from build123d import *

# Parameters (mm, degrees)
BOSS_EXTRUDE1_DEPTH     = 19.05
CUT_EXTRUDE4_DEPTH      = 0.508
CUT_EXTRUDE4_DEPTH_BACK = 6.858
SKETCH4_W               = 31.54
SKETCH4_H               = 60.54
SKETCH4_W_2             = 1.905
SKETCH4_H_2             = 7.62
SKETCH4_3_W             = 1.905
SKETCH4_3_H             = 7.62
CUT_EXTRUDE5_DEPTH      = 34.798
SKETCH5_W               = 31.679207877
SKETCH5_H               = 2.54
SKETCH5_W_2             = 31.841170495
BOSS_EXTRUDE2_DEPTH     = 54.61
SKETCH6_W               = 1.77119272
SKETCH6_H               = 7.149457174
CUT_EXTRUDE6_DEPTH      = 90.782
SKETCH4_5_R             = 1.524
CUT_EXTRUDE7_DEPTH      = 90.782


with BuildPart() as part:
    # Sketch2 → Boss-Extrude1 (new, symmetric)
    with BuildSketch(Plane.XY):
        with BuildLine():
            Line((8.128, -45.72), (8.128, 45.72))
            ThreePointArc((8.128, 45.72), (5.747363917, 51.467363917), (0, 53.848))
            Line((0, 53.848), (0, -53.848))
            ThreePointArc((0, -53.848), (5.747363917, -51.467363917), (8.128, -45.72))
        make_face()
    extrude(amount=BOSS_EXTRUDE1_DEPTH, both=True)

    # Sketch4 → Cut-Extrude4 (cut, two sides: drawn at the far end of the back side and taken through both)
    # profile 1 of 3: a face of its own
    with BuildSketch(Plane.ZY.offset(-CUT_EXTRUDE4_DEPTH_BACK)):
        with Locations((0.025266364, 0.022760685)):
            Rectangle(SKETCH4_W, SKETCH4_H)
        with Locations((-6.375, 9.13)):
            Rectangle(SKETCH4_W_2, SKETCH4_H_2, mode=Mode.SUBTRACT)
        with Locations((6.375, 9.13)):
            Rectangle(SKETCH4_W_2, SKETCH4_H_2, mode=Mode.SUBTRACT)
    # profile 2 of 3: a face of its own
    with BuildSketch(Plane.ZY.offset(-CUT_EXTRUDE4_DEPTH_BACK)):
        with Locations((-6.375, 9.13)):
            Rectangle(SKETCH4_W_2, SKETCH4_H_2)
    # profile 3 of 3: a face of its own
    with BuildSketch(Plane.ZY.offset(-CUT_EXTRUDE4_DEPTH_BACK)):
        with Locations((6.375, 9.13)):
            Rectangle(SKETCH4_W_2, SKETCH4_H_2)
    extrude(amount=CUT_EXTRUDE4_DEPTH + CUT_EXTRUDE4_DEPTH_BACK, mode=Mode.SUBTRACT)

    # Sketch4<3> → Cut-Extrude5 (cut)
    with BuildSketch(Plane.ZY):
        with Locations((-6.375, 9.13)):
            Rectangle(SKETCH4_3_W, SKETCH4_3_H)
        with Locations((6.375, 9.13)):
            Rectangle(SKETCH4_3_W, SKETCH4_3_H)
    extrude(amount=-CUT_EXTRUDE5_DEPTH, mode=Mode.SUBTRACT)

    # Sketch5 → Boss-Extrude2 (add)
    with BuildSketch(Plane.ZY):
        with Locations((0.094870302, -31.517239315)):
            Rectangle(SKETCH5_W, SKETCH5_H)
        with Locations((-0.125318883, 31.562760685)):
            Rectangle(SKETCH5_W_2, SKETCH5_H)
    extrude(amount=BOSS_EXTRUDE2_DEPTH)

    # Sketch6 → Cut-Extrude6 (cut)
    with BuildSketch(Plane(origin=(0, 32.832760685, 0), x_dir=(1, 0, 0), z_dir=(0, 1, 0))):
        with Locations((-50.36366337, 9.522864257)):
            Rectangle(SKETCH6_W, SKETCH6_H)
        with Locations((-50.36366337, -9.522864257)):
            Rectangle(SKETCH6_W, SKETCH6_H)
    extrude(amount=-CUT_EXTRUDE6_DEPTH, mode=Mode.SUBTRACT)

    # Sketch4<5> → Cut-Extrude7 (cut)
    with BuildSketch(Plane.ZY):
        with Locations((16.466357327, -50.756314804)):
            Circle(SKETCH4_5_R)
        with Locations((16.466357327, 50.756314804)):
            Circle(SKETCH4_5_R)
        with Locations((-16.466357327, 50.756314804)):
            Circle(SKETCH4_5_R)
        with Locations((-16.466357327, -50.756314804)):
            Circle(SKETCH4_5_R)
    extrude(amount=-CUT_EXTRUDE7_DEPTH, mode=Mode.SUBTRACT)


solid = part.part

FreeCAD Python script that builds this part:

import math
import FreeCAD as App
import Part
import Sketcher
from FreeCAD import Vector
Q = App.Units.Quantity

doc = App.newDocument("Part")
body = doc.addObject("PartDesign::Body", "Body")

# Sketch on XY plane
sketch1 = body.newObject("Sketcher::SketchObject", "Sketch")
sketch1.AttachmentSupport = (doc.getObject("XY_Plane"), [""])
sketch1.MapMode = "FlatFace"
sketch1.addGeometry(Part.LineSegment(Vector(8.128, -45.72, 0), Vector(8.128, 45.72, 0)), False)
sketch1.addGeometry(Part.ArcOfCircle(Part.Circle(Vector(0, 45.72, 0), Vector(0, 0, 1), 8.128), math.radians(0), math.radians(90)), False)
sketch1.addGeometry(Part.LineSegment(Vector(0, 53.848, 0), Vector(0, -53.848, 0)), False)
sketch1.addGeometry(Part.ArcOfCircle(Part.Circle(Vector(0, -45.72, 0), Vector(0, 0, 1), 8.128), math.radians(-90), math.radians(0)), False)
sketch1.addConstraint(Sketcher.Constraint("Tangent", 0, 2, 1, 1))
sketch1.addConstraint(Sketcher.Constraint("Coincident", 1, 2, 2, 1))
sketch1.addConstraint(Sketcher.Constraint("Coincident", 2, 2, 3, 1))
sketch1.addConstraint(Sketcher.Constraint("Tangent", 3, 2, 0, 1))
sketch1.addConstraint(Sketcher.Constraint("Vertical", 0))
sketch1.addConstraint(Sketcher.Constraint("Vertical", 2))
sketch1.addConstraint(Sketcher.Constraint("Equal", 1, 3))
sketch1.addConstraint(Sketcher.Constraint("Symmetric", 1, 3, 3, 3, -1, 1))
sketch1.addConstraint(Sketcher.Constraint("PointOnObject", 1, 2, -2))
sketch1.addConstraint(Sketcher.Constraint("Radius", 1, Q("0.32 in")))
sketch1.addConstraint(Sketcher.Constraint("DistanceY", 0, 1, 0, 2, Q("3.6 in")))
pad1 = body.newObject("PartDesign::Pad", "Pad")
pad1.Profile = sketch1
pad1.Length = Q("1.5 in")
pad1.Midplane = True

# Sketch on YZ plane
sketch2 = body.newObject("Sketcher::SketchObject", "Sketch001")
sketch2.AttachmentSupport = (doc.getObject("YZ_Plane"), [""])
sketch2.MapMode = "FlatFace"
sketch2.addGeometry(Part.LineSegment(Vector(30.292761, -15.744734, 0), Vector(-30.247239, -15.744734, 0)), False)
sketch2.addGeometry(Part.LineSegment(Vector(-30.247239, -15.744734, 0), Vector(-30.247239, 15.795266, 0)), False)
sketch2.addGeometry(Part.LineSegment(Vector(-30.247239, 15.795266, 0), Vector(30.292761, 15.795266, 0)), False)
sketch2.addGeometry(Part.LineSegment(Vector(30.292761, 15.795266, 0), Vector(30.292761, -15.744734, 0)), False)
sketch2.addConstraint(Sketcher.Constraint("Coincident", 0, 2, 1, 1))
sketch2.addConstraint(Sketcher.Constraint("Coincident", 1, 2, 2, 1))
sketch2.addConstraint(Sketcher.Constraint("Coincident", 2, 2, 3, 1))
sketch2.addConstraint(Sketcher.Constraint("Coincident", 3, 2, 0, 1))
sketch2.addConstraint(Sketcher.Constraint("Horizontal", 0))
sketch2.addConstraint(Sketcher.Constraint("Vertical", 1))
sketch2.addConstraint(Sketcher.Constraint("Horizontal", 2))
sketch2.addConstraint(Sketcher.Constraint("Vertical", 3))
sketch2.addConstraint(Sketcher.Constraint("DistanceX", 0, 2, 0, 1, Q("60.54 mm")))
sketch2.addConstraint(Sketcher.Constraint("DistanceY", 1, 1, 1, 2, Q("31.54 mm")))
sketch2.addConstraint(Sketcher.Constraint("DistanceX", 0, 2, -1, 1, Q("30.247239 mm")))
sketch2.addConstraint(Sketcher.Constraint("DistanceY", 0, 2, -1, 1, Q("15.744734 mm")))
pocket1 = body.newObject("PartDesign::Pocket", "Pocket")
pocket1.Profile = sketch2
pocket1.Type = "TwoLengths"
pocket1.Length = Q("0.02 in")
pocket1.Length2 = Q("0.27 in")

# Sketch on YZ plane
sketch3 = body.newObject("Sketcher::SketchObject", "Sketch002")
sketch3.AttachmentSupport = (doc.getObject("YZ_Plane"), [""])
sketch3.MapMode = "FlatFace"
sketch3.addGeometry(Part.LineSegment(Vector(12.94, -7.3275, 0), Vector(5.32, -7.3275, 0)), False)
sketch3.addGeometry(Part.LineSegment(Vector(5.32, -7.3275, 0), Vector(5.32, -5.4225, 0)), False)
sketch3.addGeometry(Part.LineSegment(Vector(5.32, -5.4225, 0), Vector(12.94, -5.4225, 0)), False)
sketch3.addGeometry(Part.LineSegment(Vector(12.94, -5.4225, 0), Vector(12.94, -7.3275, 0)), False)
sketch3.addGeometry(Part.LineSegment(Vector(12.94, 5.4225, 0), Vector(5.32, 5.4225, 0)), False)
sketch3.addGeometry(Part.LineSegment(Vector(5.32, 5.4225, 0), Vector(5.32, 7.3275, 0)), False)
sketch3.addGeometry(Part.LineSegment(Vector(5.32, 7.3275, 0), Vector(12.94, 7.3275, 0)), False)
sketch3.addGeometry(Part.LineSegment(Vector(12.94, 7.3275, 0), Vector(12.94, 5.4225, 0)), False)
sketch3.addConstraint(Sketcher.Constraint("Coincident", 0, 2, 1, 1))
sketch3.addConstraint(Sketcher.Constraint("Coincident", 1, 2, 2, 1))
sketch3.addConstraint(Sketcher.Constraint("Coincident", 2, 2, 3, 1))
sketch3.addConstraint(Sketcher.Constraint("Coincident", 3, 2, 0, 1))
sketch3.addConstraint(Sketcher.Constraint("Coincident", 4, 2, 5, 1))
sketch3.addConstraint(Sketcher.Constraint("Coincident", 5, 2, 6, 1))
sketch3.addConstraint(Sketcher.Constraint("Coincident", 6, 2, 7, 1))
sketch3.addConstraint(Sketcher.Constraint("Coincident", 7, 2, 4, 1))
sketch3.addConstraint(Sketcher.Constraint("Horizontal", 0))
sketch3.addConstraint(Sketcher.Constraint("Vertical", 1))
sketch3.addConstraint(Sketcher.Constraint("Horizontal", 2))
sketch3.addConstraint(Sketcher.Constraint("Vertical", 3))
sketch3.addConstraint(Sketcher.Constraint("Horizontal", 4))
sketch3.addConstraint(Sketcher.Constraint("Vertical", 5))
sketch3.addConstraint(Sketcher.Constraint("Horizontal", 6))
sketch3.addConstraint(Sketcher.Constraint("Vertical", 7))
sketch3.addConstraint(Sketcher.Constraint("Symmetric", 1, 2, 4, 2, -1))
sketch3.addConstraint(Sketcher.Constraint("Symmetric", 3, 2, 6, 2, -1))
sketch3.addConstraint(Sketcher.Constraint("DistanceX", 0, 2, 0, 1, Q("0.3 in")))
sketch3.addConstraint(Sketcher.Constraint("DistanceY", 1, 1, 1, 2, Q("0.075 in")))
sketch3.addConstraint(Sketcher.Constraint("DistanceX", -1, 1, 0, 2, Q("5.32 mm")))
sketch3.addConstraint(Sketcher.Constraint("DistanceY", 0, 2, -1, 1, Q("7.3275 mm")))
pocket2 = body.newObject("PartDesign::Pocket", "Pocket001")
pocket2.Profile = sketch3
pocket2.Length = Q("1.37 in")
pocket2.Reversed = True

# Sketch on YZ plane
sketch4 = body.newObject("Sketcher::SketchObject", "Sketch003")
sketch4.AttachmentSupport = (doc.getObject("YZ_Plane"), [""])
sketch4.MapMode = "FlatFace"
sketch4.addGeometry(Part.LineSegment(Vector(-30.247239, -15.744734, 0), Vector(-32.787239, -15.744734, 0)), False)
sketch4.addGeometry(Part.LineSegment(Vector(-32.787239, -15.744734, 0), Vector(-32.787239, 15.934474, 0)), False)
sketch4.addGeometry(Part.LineSegment(Vector(-32.787239, 15.934474, 0), Vector(-30.247239, 15.934474, 0)), False)
sketch4.addGeometry(Part.LineSegment(Vector(-30.247239, 15.934474, 0), Vector(-30.247239, -15.744734, 0)), False)
sketch4.addGeometry(Part.LineSegment(Vector(32.832761, -16.045904, 0), Vector(30.292761, -16.045904, 0)), False)
sketch4.addGeometry(Part.LineSegment(Vector(30.292761, -16.045904, 0), Vector(30.292761, 15.795266, 0)), False)
sketch4.addGeometry(Part.LineSegment(Vector(30.292761, 15.795266, 0), Vector(32.832761, 15.795266, 0)), False)
sketch4.addGeometry(Part.LineSegment(Vector(32.832761, 15.795266, 0), Vector(32.832761, -16.045904, 0)), False)
sketch4.addConstraint(Sketcher.Constraint("Coincident", 0, 2, 1, 1))
sketch4.addConstraint(Sketcher.Constraint("Coincident", 1, 2, 2, 1))
sketch4.addConstraint(Sketcher.Constraint("Coincident", 2, 2, 3, 1))
sketch4.addConstraint(Sketcher.Constraint("Coincident", 3, 2, 0, 1))
sketch4.addConstraint(Sketcher.Constraint("Coincident", 4, 2, 5, 1))
sketch4.addConstraint(Sketcher.Constraint("Coincident", 5, 2, 6, 1))
sketch4.addConstraint(Sketcher.Constraint("Coincident", 6, 2, 7, 1))
sketch4.addConstraint(Sketcher.Constraint("Coincident", 7, 2, 4, 1))
sketch4.addConstraint(Sketcher.Constraint("Horizontal", 0))
sketch4.addConstraint(Sketcher.Constraint("Vertical", 1))
sketch4.addConstraint(Sketcher.Constraint("Horizontal", 2))
sketch4.addConstraint(Sketcher.Constraint("Vertical", 3))
sketch4.addConstraint(Sketcher.Constraint("Horizontal", 4))
sketch4.addConstraint(Sketcher.Constraint("Vertical", 5))
sketch4.addConstraint(Sketcher.Constraint("Horizontal", 6))
sketch4.addConstraint(Sketcher.Constraint("Vertical", 7))
sketch4.addConstraint(Sketcher.Constraint("Equal", 2, 4))
sketch4.addConstraint(Sketcher.Constraint("DistanceX", 0, 2, 0, 1, Q("0.1 in")))
sketch4.addConstraint(Sketcher.Constraint("DistanceY", 5, 1, 5, 2, Q("31.84117 mm")))
sketch4.addConstraint(Sketcher.Constraint("DistanceX", 3, 2, 4, 2, Q("60.54 mm")))
sketch4.addConstraint(Sketcher.Constraint("DistanceY", 3, 2, 5, 2, Q("31.54 mm")))
sketch4.addConstraint(Sketcher.Constraint("DistanceY", 1, 1, 1, 2, Q("31.679208 mm")))
sketch4.addConstraint(Sketcher.Constraint("DistanceX", 0, 2, -1, 1, Q("32.787239 mm")))
sketch4.addConstraint(Sketcher.Constraint("DistanceY", 0, 2, -1, 1, Q("15.744734 mm")))
pad2 = body.newObject("PartDesign::Pad", "Pad001")
pad2.Profile = sketch4
pad2.Length = Q("2.15 in")
pad2.Reversed = True

# Sketch on XZ plane
sketch5 = body.newObject("Sketcher::SketchObject", "Sketch004")
sketch5.AttachmentSupport = (doc.getObject("XZ_Plane"), [""])
sketch5.MapMode = "FlatFace"
sketch5.AttachmentOffset = App.Placement(Vector(0, 0, -32.832761), App.Rotation())
sketch5.addGeometry(Part.LineSegment(Vector(-51.24926, -13.097593, 0), Vector(-51.24926, -5.948136, 0)), False)
sketch5.addGeometry(Part.LineSegment(Vector(-51.24926, -5.948136, 0), Vector(-49.478067, -5.948136, 0)), False)
sketch5.addGeometry(Part.LineSegment(Vector(-49.478067, -5.948136, 0), Vector(-49.478067, -13.097593, 0)), False)
sketch5.addGeometry(Part.LineSegment(Vector(-49.478067, -13.097593, 0), Vector(-51.24926, -13.097593, 0)), False)
sketch5.addGeometry(Part.LineSegment(Vector(-51.24926, 5.948136, 0), Vector(-51.24926, 13.097593, 0)), False)
sketch5.addGeometry(Part.LineSegment(Vector(-51.24926, 13.097593, 0), Vector(-49.478067, 13.097593, 0)), False)
sketch5.addGeometry(Part.LineSegment(Vector(-49.478067, 13.097593, 0), Vector(-49.478067, 5.948136, 0)), False)
sketch5.addGeometry(Part.LineSegment(Vector(-49.478067, 5.948136, 0), Vector(-51.24926, 5.948136, 0)), False)
sketch5.addConstraint(Sketcher.Constraint("Coincident", 0, 2, 1, 1))
sketch5.addConstraint(Sketcher.Constraint("Coincident", 1, 2, 2, 1))
sketch5.addConstraint(Sketcher.Constraint("Coincident", 2, 2, 3, 1))
sketch5.addConstraint(Sketcher.Constraint("Coincident", 3, 2, 0, 1))
sketch5.addConstraint(Sketcher.Constraint("Coincident", 4, 2, 5, 1))
sketch5.addConstraint(Sketcher.Constraint("Coincident", 5, 2, 6, 1))
sketch5.addConstraint(Sketcher.Constraint("Coincident", 6, 2, 7, 1))
sketch5.addConstraint(Sketcher.Constraint("Coincident", 7, 2, 4, 1))
sketch5.addConstraint(Sketcher.Constraint("Vertical", 0))
sketch5.addConstraint(Sketcher.Constraint("Horizontal", 1))
sketch5.addConstraint(Sketcher.Constraint("Vertical", 2))
sketch5.addConstraint(Sketcher.Constraint("Horizontal", 3))
sketch5.addConstraint(Sketcher.Constraint("Vertical", 4))
sketch5.addConstraint(Sketcher.Constraint("Horizontal", 5))
sketch5.addConstraint(Sketcher.Constraint("Vertical", 6))
sketch5.addConstraint(Sketcher.Constraint("Horizontal", 7))
sketch5.addConstraint(Sketcher.Constraint("Symmetric", 3, 2, 4, 2, -1))
sketch5.addConstraint(Sketcher.Constraint("Symmetric", 1, 2, 6, 2, -1))
sketch5.addConstraint(Sketcher.Constraint("DistanceX", 1, 1, 1, 2, Q("1.771193 mm")))
sketch5.addConstraint(Sketcher.Constraint("DistanceY", 0, 1, 0, 2, Q("7.149457 mm")))
sketch5.addConstraint(Sketcher.Constraint("DistanceX", 0, 2, -1, 1, Q("51.24926 mm")))
sketch5.addConstraint(Sketcher.Constraint("DistanceY", 0, 2, 4, 2, Q("19.045729 mm")))
pocket3 = body.newObject("PartDesign::Pocket", "Pocket002")
pocket3.Profile = sketch5
pocket3.Length = 90.782
pocket3.Reversed = True

# Sketch on YZ plane
sketch6 = body.newObject("Sketcher::SketchObject", "Sketch005")
sketch6.AttachmentSupport = (doc.getObject("YZ_Plane"), [""])
sketch6.MapMode = "FlatFace"
sketch6.addGeometry(Part.Circle(Vector(-50.756315, 16.466357, 0), Vector(0, 0, 1), 1.524), False)
sketch6.addGeometry(Part.Circle(Vector(50.756315, 16.466357, 0), Vector(0, 0, 1), 1.524), False)
sketch6.addGeometry(Part.Circle(Vector(50.756315, -16.466357, 0), Vector(0, 0, 1), 1.524), False)
sketch6.addGeometry(Part.Circle(Vector(-50.756315, -16.466357, 0), Vector(0, 0, 1), 1.524), False)
sketch6.addConstraint(Sketcher.Constraint("Equal", 0, 1))
sketch6.addConstraint(Sketcher.Constraint("Equal", 1, 2))
sketch6.addConstraint(Sketcher.Constraint("Equal", 2, 3))
sketch6.addConstraint(Sketcher.Constraint("Symmetric", 0, 3, 2, 3, -1, 1))
sketch6.addConstraint(Sketcher.Constraint("Symmetric", 1, 3, 3, 3, -1, 1))
sketch6.addConstraint(Sketcher.Constraint("Symmetric", 0, 3, 1, 3, -2))
sketch6.addConstraint(Sketcher.Constraint("Diameter", 0, Q("0.12 in")))
sketch6.addConstraint(Sketcher.Constraint("DistanceX", 0, 3, 1, 3, Q("101.51263 mm")))
sketch6.addConstraint(Sketcher.Constraint("DistanceY", -1, 1, 0, 3, Q("16.466357 mm")))
pocket4 = body.newObject("PartDesign::Pocket", "Pocket003")
pocket4.Profile = sketch6
pocket4.Length = 90.782
pocket4.Reversed = True

doc.recompute()
